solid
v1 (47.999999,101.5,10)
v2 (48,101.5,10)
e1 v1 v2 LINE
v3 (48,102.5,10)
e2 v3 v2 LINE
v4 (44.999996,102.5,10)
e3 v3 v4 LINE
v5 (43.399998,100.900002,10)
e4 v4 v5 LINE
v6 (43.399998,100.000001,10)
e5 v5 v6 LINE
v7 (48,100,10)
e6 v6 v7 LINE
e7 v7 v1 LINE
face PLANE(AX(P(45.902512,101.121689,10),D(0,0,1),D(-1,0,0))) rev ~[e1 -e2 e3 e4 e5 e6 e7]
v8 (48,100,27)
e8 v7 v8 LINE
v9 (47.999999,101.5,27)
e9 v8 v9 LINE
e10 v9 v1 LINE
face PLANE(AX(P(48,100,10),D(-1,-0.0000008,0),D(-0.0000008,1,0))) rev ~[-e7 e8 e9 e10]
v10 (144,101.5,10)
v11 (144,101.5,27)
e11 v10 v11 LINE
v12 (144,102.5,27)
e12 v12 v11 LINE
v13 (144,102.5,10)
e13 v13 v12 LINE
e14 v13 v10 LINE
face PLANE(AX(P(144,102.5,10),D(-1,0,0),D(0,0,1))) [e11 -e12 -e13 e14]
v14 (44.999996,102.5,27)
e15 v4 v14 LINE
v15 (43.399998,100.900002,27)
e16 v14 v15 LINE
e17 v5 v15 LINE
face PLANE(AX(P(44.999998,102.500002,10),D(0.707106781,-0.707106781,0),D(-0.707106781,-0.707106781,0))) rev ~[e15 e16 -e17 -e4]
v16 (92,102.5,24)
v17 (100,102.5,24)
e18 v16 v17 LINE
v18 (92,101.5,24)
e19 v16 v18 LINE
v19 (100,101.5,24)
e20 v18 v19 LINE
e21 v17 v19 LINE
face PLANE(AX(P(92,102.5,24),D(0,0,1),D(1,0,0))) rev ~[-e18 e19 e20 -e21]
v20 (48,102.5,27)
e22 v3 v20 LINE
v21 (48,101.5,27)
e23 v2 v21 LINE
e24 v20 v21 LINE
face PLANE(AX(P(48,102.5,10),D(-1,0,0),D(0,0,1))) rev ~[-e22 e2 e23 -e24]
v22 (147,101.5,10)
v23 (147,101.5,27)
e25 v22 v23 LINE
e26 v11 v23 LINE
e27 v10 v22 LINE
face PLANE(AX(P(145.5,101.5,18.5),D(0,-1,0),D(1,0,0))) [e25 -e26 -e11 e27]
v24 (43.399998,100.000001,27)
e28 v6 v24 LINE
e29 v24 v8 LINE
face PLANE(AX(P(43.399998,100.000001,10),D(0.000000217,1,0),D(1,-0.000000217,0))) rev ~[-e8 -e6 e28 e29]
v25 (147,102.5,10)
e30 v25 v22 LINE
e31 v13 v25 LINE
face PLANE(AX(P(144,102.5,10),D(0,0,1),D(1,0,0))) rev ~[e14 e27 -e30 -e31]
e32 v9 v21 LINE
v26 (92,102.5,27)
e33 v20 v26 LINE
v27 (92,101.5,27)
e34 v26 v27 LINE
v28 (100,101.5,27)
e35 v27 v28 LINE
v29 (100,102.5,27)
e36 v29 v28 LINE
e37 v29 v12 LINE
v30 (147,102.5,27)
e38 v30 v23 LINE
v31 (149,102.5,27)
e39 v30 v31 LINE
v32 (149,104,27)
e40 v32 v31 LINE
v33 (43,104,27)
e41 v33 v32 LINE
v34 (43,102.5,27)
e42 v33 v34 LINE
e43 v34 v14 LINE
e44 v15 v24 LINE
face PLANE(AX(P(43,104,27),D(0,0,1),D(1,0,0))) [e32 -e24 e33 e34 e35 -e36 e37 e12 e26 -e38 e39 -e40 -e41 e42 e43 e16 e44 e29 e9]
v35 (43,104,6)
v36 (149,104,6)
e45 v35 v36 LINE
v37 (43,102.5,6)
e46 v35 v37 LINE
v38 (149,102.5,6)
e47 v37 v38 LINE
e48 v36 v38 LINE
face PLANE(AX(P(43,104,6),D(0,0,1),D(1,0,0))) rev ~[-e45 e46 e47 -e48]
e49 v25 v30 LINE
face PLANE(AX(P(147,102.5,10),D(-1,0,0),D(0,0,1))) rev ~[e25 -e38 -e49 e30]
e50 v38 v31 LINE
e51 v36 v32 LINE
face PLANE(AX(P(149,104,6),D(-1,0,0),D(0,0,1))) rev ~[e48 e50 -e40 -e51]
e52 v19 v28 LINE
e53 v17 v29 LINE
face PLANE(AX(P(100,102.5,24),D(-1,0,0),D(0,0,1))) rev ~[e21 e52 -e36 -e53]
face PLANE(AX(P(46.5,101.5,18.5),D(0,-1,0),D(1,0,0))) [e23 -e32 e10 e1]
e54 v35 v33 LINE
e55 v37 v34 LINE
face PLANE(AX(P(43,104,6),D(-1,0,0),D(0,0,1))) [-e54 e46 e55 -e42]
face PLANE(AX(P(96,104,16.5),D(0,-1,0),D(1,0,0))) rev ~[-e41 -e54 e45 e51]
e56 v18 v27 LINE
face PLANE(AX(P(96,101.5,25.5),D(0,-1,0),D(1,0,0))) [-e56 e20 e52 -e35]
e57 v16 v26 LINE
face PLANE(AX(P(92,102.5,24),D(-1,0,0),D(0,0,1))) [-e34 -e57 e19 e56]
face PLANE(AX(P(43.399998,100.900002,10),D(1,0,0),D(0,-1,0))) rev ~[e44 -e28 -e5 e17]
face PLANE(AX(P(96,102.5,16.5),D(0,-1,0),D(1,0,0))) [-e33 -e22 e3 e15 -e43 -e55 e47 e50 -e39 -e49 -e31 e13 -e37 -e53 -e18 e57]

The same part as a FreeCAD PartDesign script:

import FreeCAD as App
import Part
import Sketcher

V = App.Vector
Q = App.Units.Quantity

doc = App.newDocument("Part")
body = doc.addObject("PartDesign::Body", "Body")

sketch1 = doc.addObject("Sketcher::SketchObject", "Sketch")
body.addObject(sketch1)
sketch1.AttachmentSupport = (doc.XZ_Plane, [""])
sketch1.MapMode = "FlatFace"
sketch1.AttachmentOffset = App.Placement(V(0, 0, -104), App.Rotation())
sketch1.addGeometry([
    Part.LineSegment(V(-149, 27, 0), V(-149, 6, 0)),
    Part.LineSegment(V(-149, 6, 0), V(-43, 6, 0)),
    Part.LineSegment(V(-43, 6, 0), V(-43, 27, 0)),
    Part.LineSegment(V(-43, 27, 0), V(-149, 27, 0)),
], False)
sketch1.addConstraint([
    Sketcher.Constraint("Coincident", 0, 2, 1, 1),
    Sketcher.Constraint("Coincident", 1, 2, 2, 1),
    Sketcher.Constraint("Coincident", 2, 2, 3, 1),
    Sketcher.Constraint("Coincident", 3, 2, 0, 1),
    Sketcher.Constraint("Vertical", 0),
    Sketcher.Constraint("Horizontal", 1),
    Sketcher.Constraint("Vertical", 2),
    Sketcher.Constraint("Horizontal", 3),
    Sketcher.Constraint("DistanceX", 1, 1, 1, 2, Q("106 mm")),
    Sketcher.Constraint("DistanceY", 0, 2, 0, 1, Q("21 mm")),
    Sketcher.Constraint("DistanceX", 0, 2, -1, 1, Q("149 mm")),
    Sketcher.Constraint("DistanceY", -1, 1, 0, 2, Q("6 mm")),
])
pad1 = doc.addObject("PartDesign::Pad", "Pad")
body.addObject(pad1)
pad1.Profile = sketch1
pad1.Length = 1.5

sketch2 = doc.addObject("Sketcher::SketchObject", "Sketch001")
body.addObject(sketch2)
sketch2.AttachmentSupport = (doc.XZ_Plane, [""])
sketch2.MapMode = "FlatFace"
sketch2.AttachmentOffset = App.Placement(V(0, 0, -102.5), App.Rotation())
sketch2.addGeometry([
    Part.LineSegment(V(-147, 27, 0), V(-147, 10, 0)),
    Part.LineSegment(V(-147, 10, 0), V(-144, 10, 0)),
    Part.LineSegment(V(-144, 10, 0), V(-144, 27, 0)),
    Part.LineSegment(V(-144, 27, 0), V(-147, 27, 0)),
    Part.LineSegment(V(-48, 27, 0), V(-48, 10, 0)),
    Part.LineSegment(V(-48, 10, 0), V(-45, 10, 0)),
    Part.LineSegment(V(-45, 10, 0), V(-45, 27, 0)),
    Part.LineSegment(V(-45, 27, 0), V(-48, 27, 0)),
    Part.LineSegment(V(-100, 27, 0), V(-100, 24, 0)),
    Part.LineSegment(V(-100, 24, 0), V(-92, 24, 0)),
    Part.LineSegment(V(-92, 24, 0), V(-92, 27, 0)),
    Part.LineSegment(V(-92, 27, 0), V(-100, 27, 0)),
], False)
sketch2.addConstraint([
    Sketcher.Constraint("Coincident", 0, 2, 1, 1),
    Sketcher.Constraint("Coincident", 1, 2, 2, 1),
    Sketcher.Constraint("Coincident", 2, 2, 3, 1),
    Sketcher.Constraint("Coincident", 3, 2, 0, 1),
    Sketcher.Constraint("Coincident", 4, 2, 5, 1),
    Sketcher.Constraint("Coincident", 5, 2, 6, 1),
    Sketcher.Constraint("Coincident", 6, 2, 7, 1),
    Sketcher.Constraint("Coincident", 7, 2, 4, 1),
    Sketcher.Constraint("Coincident", 8, 2, 9, 1),
    Sketcher.Constraint("Coincident", 9, 2, 10, 1),
    Sketcher.Constraint("Coincident", 10, 2, 11, 1),
    Sketcher.Constraint("Coincident", 11, 2, 8, 1),
    Sketcher.Constraint("Vertical", 0),
    Sketcher.Constraint("Horizontal", 1),
    Sketcher.Constraint("Vertical", 2),
    Sketcher.Constraint("Horizontal", 3),
    Sketcher.Constraint("Vertical", 4),
    Sketcher.Constraint("Horizontal", 5),
    Sketcher.Constraint("Vertical", 6),
    Sketcher.Constraint("Horizontal", 7),
    Sketcher.Constraint("Vertical", 8),
    Sketcher.Constraint("Horizontal", 9),
    Sketcher.Constraint("Vertical", 10),
    Sketcher.Constraint("Horizontal", 11),
    Sketcher.Constraint("Horizontal", 1, 2, 4, 2),
    Sketcher.Constraint("Horizontal", 3, 2, 6, 2),
    Sketcher.Constraint("Horizontal", 7, 2, 10, 2),
    Sketcher.Constraint("Equal", 3, 5),
    Sketcher.Constraint("Equal", 7, 8),
    Sketcher.Constraint("DistanceX", 1, 1, 1, 2, Q("3 mm")),
    Sketcher.Constraint("DistanceX", 9, 1, 9, 2, Q("8 mm")),
    Sketcher.Constraint("DistanceY", 0, 2, 0, 1, Q("17 mm")),
    Sketcher.Constraint("DistanceX", 0, 2, -1, 1, Q("147 mm")),
    Sketcher.Constraint("DistanceY", -1, 1, 0, 2, Q("10 mm")),
    Sketcher.Constraint("DistanceX", 4, 2, -1, 1, Q("48 mm")),
    Sketcher.Constraint("DistanceX", 8, 2, -1, 1, Q("100 mm")),
])
pad2 = doc.addObject("PartDesign::Pad", "Pad001")
body.addObject(pad2)
pad2.Profile = sketch2
pad2.Length = 1

sketch3 = doc.addObject("Sketcher::SketchObject", "Sketch002")
body.addObject(sketch3)
sketch3.AttachmentSupport = (doc.XY_Plane, [""])
sketch3.MapMode = "FlatFace"
sketch3.AttachmentOffset = App.Placement(V(0, 0, 10), App.Rotation())
sketch3.addGeometry([
    Part.LineSegment(V(-148.600002, 100.900002, 0), V(-147.000002, 102.500002, 0)),
    Part.LineSegment(V(-147.000002, 102.500002, 0), V(-144.000002, 102.500002, 0)),
    Part.LineSegment(V(-144.000002, 102.500002, 0), V(-144, 100, 0)),
    Part.LineSegment(V(-144, 100, 0), V(-148.600002, 100.000001, 0)),
    Part.LineSegment(V(-148.600002, 100.000001, 0), V(-148.600002, 100.900002, 0)),
], False)
sketch3.addConstraint([
    Sketcher.Constraint("Coincident", 0, 2, 1, 1),
    Sketcher.Constraint("Coincident", 1, 2, 2, 1),
    Sketcher.Constraint("Coincident", 2, 2, 3, 1),
    Sketcher.Constraint("Coincident", 3, 2, 4, 1),
    Sketcher.Constraint("Coincident", 4, 2, 0, 1),
    Sketcher.Constraint("Horizontal", 1),
    Sketcher.Constraint("Vertical", 2),
    Sketcher.Constraint("Horizontal", 3),
    Sketcher.Constraint("Vertical", 4),
    Sketcher.Constraint("DistanceX", 1, 1, 1, 2, Q("3 mm")),
    Sketcher.Constraint("Angle", 0, Q("45 deg")),
    Sketcher.Constraint("DistanceX", 3, 2, 3, 1, Q("4.600002 mm")),
    Sketcher.Constraint("DistanceY", 2, 2, 2, 1, Q("2.500002 mm")),
    Sketcher.Constraint("DistanceX", 0, 2, -1, 1, Q("147.000002 mm")),
    Sketcher.Constraint("DistanceY", -1, 1, 2, 2, Q("100 mm")),
])
pad3 = doc.addObject("PartDesign::Pad", "Pad002")
body.addObject(pad3)
pad3.Profile = sketch3
pad3.Length = 17
body2 = doc.addObject("PartDesign::Body", "Body001")
doc.recompute()

body.Placement = App.Placement(V(192, 0, 0), App.Rotation(V(0, 0, 1), 0))
boolean = doc.addObject("PartDesign::Boolean", "Boolean")
body2.addObject(boolean)
boolean.Type = "Fuse"
boolean.addObjects([body])

doc.recompute()
